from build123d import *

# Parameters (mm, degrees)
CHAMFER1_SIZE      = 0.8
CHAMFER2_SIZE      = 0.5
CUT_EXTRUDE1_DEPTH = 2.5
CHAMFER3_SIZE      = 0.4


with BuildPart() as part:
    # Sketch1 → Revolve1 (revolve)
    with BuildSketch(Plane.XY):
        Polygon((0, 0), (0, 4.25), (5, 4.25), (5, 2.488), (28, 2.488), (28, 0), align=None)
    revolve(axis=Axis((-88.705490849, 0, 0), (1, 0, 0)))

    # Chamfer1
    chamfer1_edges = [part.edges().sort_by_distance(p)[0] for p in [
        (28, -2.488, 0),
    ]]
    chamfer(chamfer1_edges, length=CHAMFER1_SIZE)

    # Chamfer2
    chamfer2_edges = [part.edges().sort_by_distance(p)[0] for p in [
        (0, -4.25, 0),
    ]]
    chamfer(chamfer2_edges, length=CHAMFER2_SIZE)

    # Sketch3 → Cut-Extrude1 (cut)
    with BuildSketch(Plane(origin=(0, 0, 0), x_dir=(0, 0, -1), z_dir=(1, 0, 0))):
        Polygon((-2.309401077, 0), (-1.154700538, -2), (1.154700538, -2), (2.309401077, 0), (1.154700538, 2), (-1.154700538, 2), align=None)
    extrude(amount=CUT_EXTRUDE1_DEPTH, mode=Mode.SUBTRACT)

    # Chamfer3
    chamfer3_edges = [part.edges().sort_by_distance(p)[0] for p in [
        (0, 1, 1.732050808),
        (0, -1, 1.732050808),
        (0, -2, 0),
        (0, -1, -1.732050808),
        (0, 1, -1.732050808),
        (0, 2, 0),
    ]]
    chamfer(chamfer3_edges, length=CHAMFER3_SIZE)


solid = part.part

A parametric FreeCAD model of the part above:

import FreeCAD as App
import Part
import Sketcher
from FreeCAD import Vector
Q = App.Units.Quantity


def edges_at(feature, points):
    """Names of the edges that pass closest to the given points."""
    edges = feature.Shape.Edges
    near = lambda p: min(range(len(edges)), key=lambda i: edges[i].distToShape(Part.Vertex(*p))[0])
    return sorted({f"Edge{near(p) + 1}" for p in points})

doc = App.newDocument("Part")
body = doc.addObject("PartDesign::Body", "Body")

sketch1 = body.newObject("Sketcher::SketchObject", "Sketch")
sketch1.AttachmentSupport = (doc.getObject("XY_Plane"), [""])
sketch1.MapMode = "FlatFace"
sketch1.addGeometry(Part.LineSegment(Vector(0, 4.2, 0), Vector(0, 0, 0)), False)
sketch1.addGeometry(Part.LineSegment(Vector(0, 0, 0), Vector(28, 0, 0)), False)
sketch1.addGeometry(Part.LineSegment(Vector(28, 0, 0), Vector(28, 2.5, 0)), False)
sketch1.addGeometry(Part.LineSegment(Vector(28, 2.5, 0), Vector(5, 2.5, 0)), False)
sketch1.addGeometry(Part.LineSegment(Vector(5, 2.5, 0), Vector(5, 4.2, 0)), False)
sketch1.addGeometry(Part.LineSegment(Vector(5, 4.2, 0), Vector(0, 4.2, 0)), False)
sketch1.addConstraint(Sketcher.Constraint("Coincident", 0, 2, 1, 1))
sketch1.addConstraint(Sketcher.Constraint("Coincident", 1, 2, 2, 1))
sketch1.addConstraint(Sketcher.Constraint("Coincident", 2, 2, 3, 1))
sketch1.addConstraint(Sketcher.Constraint("Coincident", 3, 2, 4, 1))
sketch1.addConstraint(Sketcher.Constraint("Coincident", 4, 2, 5, 1))
sketch1.addConstraint(Sketcher.Constraint("Coincident", 5, 2, 0, 1))
sketch1.addConstraint(Sketcher.Constraint("Vertical", 0))
sketch1.addConstraint(Sketcher.Constraint("Horizontal", 1))
sketch1.addConstraint(Sketcher.Constraint("Vertical", 2))
sketch1.addConstraint(Sketcher.Constraint("Horizontal", 3))
sketch1.addConstraint(Sketcher.Constraint("Vertical", 4))
sketch1.addConstraint(Sketcher.Constraint("Horizontal", 5))
sketch1.addConstraint(Sketcher.Constraint("Coincident", 0, 2, -1, 1))
sketch1.addConstraint(Sketcher.Constraint("DistanceX", 1, 1, 1, 2, 28.0))
sketch1.addConstraint(Sketcher.Constraint("DistanceX", 3, 2, 3, 1, 23.0))
sketch1.addConstraint(Sketcher.Constraint("DistanceY", 0, 2, 0, 1, 4.25))
sketch1.addConstraint(Sketcher.Constraint("DistanceY", 2, 1, 2, 2, 2.488))
revolution = body.newObject("PartDesign::Revolution", "Revolution")
revolution.Profile = sketch1
revolution.ReferenceAxis = (sketch1, ["H_Axis"])
revolution.Angle = 360
doc.recompute()

chamfer = body.newObject("PartDesign::Chamfer", "Chamfer")
chamfer.Base = (revolution, edges_at(revolution, [(28, -2.488, 0)]))
chamfer.Size = 0.8
doc.recompute()

chamfer2 = body.newObject("PartDesign::Chamfer", "Chamfer001")
chamfer2.Base = (chamfer, edges_at(chamfer, [(0, -4.25, 0)]))
chamfer2.Size = 0.5

sketch2 = body.newObject("Sketcher::SketchObject", "Sketch001")
sketch2.AttachmentSupport = (doc.getObject("YZ_Plane"), [""])
sketch2.MapMode = "FlatFace"
sketch2.addGeometry(Part.LineSegment(Vector(0, 2.3, 0), Vector(-2, 1.2, 0)), False)
sketch2.addGeometry(Part.LineSegment(Vector(-2, 1.2, 0), Vector(-2, -1.2, 0)), False)
sketch2.addGeometry(Part.LineSegment(Vector(-2, -1.2, 0), Vector(0, -2.3, 0)), False)
sketch2.addGeometry(Part.LineSegment(Vector(0, -2.3, 0), Vector(2, -1.2, 0)), False)
sketch2.addGeometry(Part.LineSegment(Vector(2, -1.2, 0), Vector(2, 1.2, 0)), False)
sketch2.addGeometry(Part.LineSegment(Vector(2, 1.2, 0), Vector(0, 2.3, 0)), False)
sketch2.addConstraint(Sketcher.Constraint("Coincident", 0, 2, 1, 1))
sketch2.addConstraint(Sketcher.Constraint("Coincident", 1, 2, 2, 1))
sketch2.addConstraint(Sketcher.Constraint("Coincident", 2, 2, 3, 1))
sketch2.addConstraint(Sketcher.Constraint("Coincident", 3, 2, 4, 1))
sketch2.addConstraint(Sketcher.Constraint("Coincident", 4, 2, 5, 1))
sketch2.addConstraint(Sketcher.Constraint("Coincident", 5, 2, 0, 1))
sketch2.addConstraint(Sketcher.Constraint("Vertical", 1))
sketch2.addConstraint(Sketcher.Constraint("Vertical", 4))
sketch2.addConstraint(Sketcher.Constraint("Symmetric", 0, 2, 3, 2, -1, 1))
sketch2.addConstraint(Sketcher.Constraint("Symmetric", 2, 2, 5, 2, -1, 1))
sketch2.addConstraint(Sketcher.Constraint("PointOnObject", 2, 2, -2))
sketch2.addConstraint(Sketcher.Constraint("Parallel", 2, 5))
sketch2.addConstraint(Sketcher.Constraint("Horizontal", 1, 2, 3, 2))
sketch2.addConstraint(Sketcher.Constraint("Angle", 0, Q("-150 deg")))
sketch2.addConstraint(Sketcher.Constraint("DistanceX", 0, 2, -1, 1, 2.0))
sketch2.addConstraint(Sketcher.Constraint("DistanceY", 1, 2, 1, 1, 2.309401))
pocket1 = body.newObject("PartDesign::Pocket", "Pocket")
pocket1.Profile = sketch2
pocket1.Length = 2.5
pocket1.Reversed = True
doc.recompute()

chamfer3 = body.newObject("PartDesign::Chamfer", "Chamfer002")
chamfer3.Base = (pocket1, edges_at(pocket1, [
    (0, 1, 1.732),
    (0, -1, 1.732),
    (0, -2, 0),
    (0, -1, -1.732),
    (0, 1, -1.732),
    (0, 2, 0),
]))
chamfer3.Size = 0.4

doc.recompute()
